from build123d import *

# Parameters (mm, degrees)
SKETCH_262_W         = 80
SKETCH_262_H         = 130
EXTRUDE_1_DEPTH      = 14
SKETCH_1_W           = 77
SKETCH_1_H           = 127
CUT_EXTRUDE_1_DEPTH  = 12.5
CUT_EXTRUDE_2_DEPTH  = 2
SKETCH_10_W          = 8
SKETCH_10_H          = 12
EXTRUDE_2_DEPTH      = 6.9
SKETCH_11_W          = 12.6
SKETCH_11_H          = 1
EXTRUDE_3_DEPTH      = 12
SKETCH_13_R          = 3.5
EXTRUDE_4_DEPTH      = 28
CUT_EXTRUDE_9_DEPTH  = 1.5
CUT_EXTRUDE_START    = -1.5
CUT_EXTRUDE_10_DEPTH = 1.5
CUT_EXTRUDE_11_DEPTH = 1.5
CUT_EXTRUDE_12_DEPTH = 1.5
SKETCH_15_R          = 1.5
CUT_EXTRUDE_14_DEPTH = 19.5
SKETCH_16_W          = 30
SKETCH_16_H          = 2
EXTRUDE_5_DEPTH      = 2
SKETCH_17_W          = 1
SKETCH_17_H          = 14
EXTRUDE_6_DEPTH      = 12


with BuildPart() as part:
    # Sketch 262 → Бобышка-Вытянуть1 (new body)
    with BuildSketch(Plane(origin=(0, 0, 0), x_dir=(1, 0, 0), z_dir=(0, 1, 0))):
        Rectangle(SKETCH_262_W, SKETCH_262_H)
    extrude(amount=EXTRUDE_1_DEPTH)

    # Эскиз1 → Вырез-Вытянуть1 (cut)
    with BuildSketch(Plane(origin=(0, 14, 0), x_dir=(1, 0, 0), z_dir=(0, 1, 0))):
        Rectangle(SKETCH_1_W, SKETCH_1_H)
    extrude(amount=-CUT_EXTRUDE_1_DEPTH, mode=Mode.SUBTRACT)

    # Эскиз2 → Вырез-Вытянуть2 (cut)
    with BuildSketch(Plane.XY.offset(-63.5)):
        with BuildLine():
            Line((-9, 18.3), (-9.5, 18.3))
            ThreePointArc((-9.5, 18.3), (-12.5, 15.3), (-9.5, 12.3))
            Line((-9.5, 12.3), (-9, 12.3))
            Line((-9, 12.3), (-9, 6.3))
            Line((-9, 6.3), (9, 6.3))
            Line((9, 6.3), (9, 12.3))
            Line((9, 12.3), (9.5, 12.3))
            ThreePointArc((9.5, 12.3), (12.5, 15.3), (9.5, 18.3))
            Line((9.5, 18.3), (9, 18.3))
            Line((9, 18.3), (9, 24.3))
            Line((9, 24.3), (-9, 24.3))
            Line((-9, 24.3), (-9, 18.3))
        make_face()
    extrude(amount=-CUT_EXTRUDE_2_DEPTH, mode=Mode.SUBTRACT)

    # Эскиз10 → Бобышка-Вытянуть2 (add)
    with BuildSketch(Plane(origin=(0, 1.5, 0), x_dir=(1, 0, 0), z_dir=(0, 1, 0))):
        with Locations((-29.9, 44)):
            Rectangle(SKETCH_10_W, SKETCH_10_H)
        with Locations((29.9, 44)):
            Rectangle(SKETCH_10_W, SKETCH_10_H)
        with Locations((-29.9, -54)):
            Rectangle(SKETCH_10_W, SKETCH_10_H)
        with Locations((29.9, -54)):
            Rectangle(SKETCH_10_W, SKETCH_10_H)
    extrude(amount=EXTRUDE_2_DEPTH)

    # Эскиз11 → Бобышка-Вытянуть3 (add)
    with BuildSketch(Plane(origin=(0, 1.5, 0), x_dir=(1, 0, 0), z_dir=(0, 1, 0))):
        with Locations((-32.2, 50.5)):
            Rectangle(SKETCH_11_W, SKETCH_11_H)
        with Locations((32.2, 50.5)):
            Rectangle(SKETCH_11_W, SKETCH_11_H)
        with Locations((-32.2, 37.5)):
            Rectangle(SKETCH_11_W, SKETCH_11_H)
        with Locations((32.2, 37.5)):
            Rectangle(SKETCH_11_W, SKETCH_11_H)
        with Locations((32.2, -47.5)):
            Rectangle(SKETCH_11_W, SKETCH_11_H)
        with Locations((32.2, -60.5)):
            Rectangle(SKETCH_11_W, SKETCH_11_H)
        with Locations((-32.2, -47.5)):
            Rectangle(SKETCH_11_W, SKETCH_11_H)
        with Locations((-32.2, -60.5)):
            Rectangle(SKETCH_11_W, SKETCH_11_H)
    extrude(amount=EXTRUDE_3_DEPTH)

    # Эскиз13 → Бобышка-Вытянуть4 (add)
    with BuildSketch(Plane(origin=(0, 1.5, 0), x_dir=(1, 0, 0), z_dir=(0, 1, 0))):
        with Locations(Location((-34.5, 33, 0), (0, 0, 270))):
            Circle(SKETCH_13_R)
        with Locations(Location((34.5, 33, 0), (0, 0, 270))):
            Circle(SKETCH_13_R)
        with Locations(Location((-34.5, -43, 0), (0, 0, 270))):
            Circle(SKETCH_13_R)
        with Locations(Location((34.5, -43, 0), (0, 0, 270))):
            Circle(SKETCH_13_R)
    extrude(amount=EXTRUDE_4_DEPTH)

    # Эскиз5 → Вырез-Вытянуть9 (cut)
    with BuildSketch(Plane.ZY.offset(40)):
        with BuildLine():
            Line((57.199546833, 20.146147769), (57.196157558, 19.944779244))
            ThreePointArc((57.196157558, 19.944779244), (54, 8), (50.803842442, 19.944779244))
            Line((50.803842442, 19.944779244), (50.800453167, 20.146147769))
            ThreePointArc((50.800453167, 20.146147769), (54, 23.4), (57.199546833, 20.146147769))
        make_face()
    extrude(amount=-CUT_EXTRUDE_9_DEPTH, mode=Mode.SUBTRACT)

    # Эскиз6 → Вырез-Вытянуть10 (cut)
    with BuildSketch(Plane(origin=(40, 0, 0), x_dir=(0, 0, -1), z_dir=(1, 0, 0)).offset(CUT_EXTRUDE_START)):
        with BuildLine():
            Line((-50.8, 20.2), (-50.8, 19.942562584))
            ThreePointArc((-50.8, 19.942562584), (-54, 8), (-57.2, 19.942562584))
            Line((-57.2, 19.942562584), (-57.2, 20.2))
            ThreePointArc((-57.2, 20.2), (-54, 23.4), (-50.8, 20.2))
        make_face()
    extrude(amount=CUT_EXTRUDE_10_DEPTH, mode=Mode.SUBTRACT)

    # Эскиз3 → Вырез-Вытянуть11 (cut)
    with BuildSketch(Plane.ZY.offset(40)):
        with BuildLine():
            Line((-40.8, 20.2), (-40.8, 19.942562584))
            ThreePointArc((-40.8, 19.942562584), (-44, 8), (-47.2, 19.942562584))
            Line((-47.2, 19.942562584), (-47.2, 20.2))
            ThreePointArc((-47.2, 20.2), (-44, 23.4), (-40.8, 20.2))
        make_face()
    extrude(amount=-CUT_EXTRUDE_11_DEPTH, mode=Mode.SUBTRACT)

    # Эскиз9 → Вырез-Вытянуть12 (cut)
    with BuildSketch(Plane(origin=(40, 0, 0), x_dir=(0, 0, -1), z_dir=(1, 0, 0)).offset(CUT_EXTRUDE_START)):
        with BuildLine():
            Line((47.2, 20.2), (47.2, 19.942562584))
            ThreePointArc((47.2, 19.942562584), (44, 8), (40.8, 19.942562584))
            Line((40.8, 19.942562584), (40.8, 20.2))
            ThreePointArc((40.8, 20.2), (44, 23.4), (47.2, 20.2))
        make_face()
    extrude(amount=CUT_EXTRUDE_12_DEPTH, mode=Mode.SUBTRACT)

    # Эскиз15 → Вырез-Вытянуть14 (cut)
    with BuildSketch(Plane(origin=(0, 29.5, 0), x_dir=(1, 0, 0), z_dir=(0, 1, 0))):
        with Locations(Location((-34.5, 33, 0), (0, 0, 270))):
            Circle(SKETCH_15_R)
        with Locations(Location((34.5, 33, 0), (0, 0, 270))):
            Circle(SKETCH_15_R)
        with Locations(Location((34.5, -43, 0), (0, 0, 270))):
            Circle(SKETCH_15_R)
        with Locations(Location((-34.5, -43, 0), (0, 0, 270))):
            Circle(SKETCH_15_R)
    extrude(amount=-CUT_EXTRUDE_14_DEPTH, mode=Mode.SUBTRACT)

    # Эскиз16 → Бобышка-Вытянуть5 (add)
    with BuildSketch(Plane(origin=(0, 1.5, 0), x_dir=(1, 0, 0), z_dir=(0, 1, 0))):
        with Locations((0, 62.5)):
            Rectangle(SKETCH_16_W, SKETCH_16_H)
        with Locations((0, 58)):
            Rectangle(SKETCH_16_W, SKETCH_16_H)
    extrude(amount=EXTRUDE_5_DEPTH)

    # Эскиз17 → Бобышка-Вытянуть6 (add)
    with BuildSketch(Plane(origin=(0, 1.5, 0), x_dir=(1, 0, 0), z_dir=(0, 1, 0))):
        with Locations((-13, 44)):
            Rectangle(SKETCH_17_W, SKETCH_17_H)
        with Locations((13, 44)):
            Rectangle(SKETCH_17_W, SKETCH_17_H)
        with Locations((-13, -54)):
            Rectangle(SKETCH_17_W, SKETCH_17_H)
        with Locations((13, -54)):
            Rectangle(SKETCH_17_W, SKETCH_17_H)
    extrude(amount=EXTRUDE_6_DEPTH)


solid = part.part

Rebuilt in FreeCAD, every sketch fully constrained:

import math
import FreeCAD as App
import Part
import Sketcher

V = App.Vector
Q = App.Units.Quantity


def add_polygon(sketch, points):
    """Adds a closed chain of lines whose ends are joined by coincident constraints."""
    first, n = sketch.GeometryCount, len(points)
    for a, b in zip(points, points[1:] + points[:1]):
        sketch.addGeometry(Part.LineSegment(App.Vector(*a, 0), App.Vector(*b, 0)), False)
    for i in range(n):
        sketch.addConstraint(Sketcher.Constraint("Coincident", first + i, 2, first + (i + 1) % n, 1))

doc = App.newDocument("Part")
params = doc.addObject("Spreadsheet::Sheet", "Params")
for row, (alias, value) in enumerate([
    ("sketch1_width", "80 mm"),
    ("sketch1_height", "130 mm"),
    ("pad1_length", "14 mm"),
    ("sketch2_width", "77 mm"),
    ("sketch2_height", "127 mm"),
    ("pocket1_length", "12.5 mm"),
    ("sketch3_radius", "3 mm"),
    ("sketch3_width", "18 mm"),
    ("sketch3_height", "6 mm"),
    ("sketch3_width2", "0.5 mm"),
    ("pocket2_length", "2 mm"),
    ("sketch4_width", "8 mm"),
    ("sketch4_height", "12 mm"),
    ("pad2_length", "6.9 mm"),
    ("sketch5_height", "1 mm"),
    ("sketch5_width", "12.6 mm"),
    ("pad3_length", "12 mm"),
    ("sketch6_diameter", "7 mm"),
    ("pad4_length", "28 mm"),
    ("sketch7_radius", "3.2 mm"),
    ("sketch7_radius2", "6.4 mm"),
    ("pocket3_length", "1.5 mm"),
    ("sketch8_radius", "3.2 mm"),
    ("sketch8_radius2", "6.4 mm"),
    ("pocket4_length", "1.5 mm"),
    ("sketch9_radius", "3.2 mm"),
    ("sketch9_radius2", "6.4 mm"),
    ("pocket5_length", "1.5 mm"),
    ("sketch10_radius", "3.2 mm"),
    ("sketch10_radius2", "6.4 mm"),
    ("pocket6_length", "1.5 mm"),
    ("sketch11_diameter", "3 mm"),
    ("pocket7_length", "19.5 mm"),
    ("sketch12_width", "30 mm"),
    ("sketch12_height", "2 mm"),
    ("pad5_length", "2 mm"),
    ("sketch13_width", "1 mm"),
    ("sketch13_height", "14 mm"),
    ("pad6_length", "12 mm"),
], start=1):
    params.set(f"A{row}", alias)
    params.set(f"B{row}", "=" + value)
    params.setAlias(f"B{row}", alias)

body = doc.addObject("PartDesign::Body", "Body")

# Sketch on XZ plane
sketch1 = body.newObject("Sketcher::SketchObject", "Sketch")
sketch1.AttachmentSupport = (doc.getObject("XZ_Plane"), [""])
sketch1.MapMode = "FlatFace"
add_polygon(sketch1, [(-40, -65), (-40, 65), (40, 65), (40, -65)])  # lines 0-3
sketch1.addConstraint(Sketcher.Constraint("Vertical", 0))
sketch1.addConstraint(Sketcher.Constraint("Horizontal", 1))
sketch1.addConstraint(Sketcher.Constraint("Vertical", 2))
sketch1.addConstraint(Sketcher.Constraint("Horizontal", 3))
sketch1.addConstraint(Sketcher.Constraint("Symmetric", 0, 2, 2, 2, -1, 1))
sketch1.addConstraint(Sketcher.Constraint("DistanceX", 1, 1, 1, 2, Q("80 mm")))
sketch1.addConstraint(Sketcher.Constraint("DistanceY", 0, 1, 0, 2, Q("130 mm")))
sketch1.setExpression("Constraints[9]", "Params.sketch1_width")
sketch1.setExpression("Constraints[10]", "Params.sketch1_height")
pad1 = body.newObject("PartDesign::Pad", "Pad")
pad1.Profile = sketch1
pad1.setExpression("Length", "Params.pad1_length")
pad1.Reversed = True

# Sketch on XZ plane
sketch2 = body.newObject("Sketcher::SketchObject", "Sketch001")
sketch2.AttachmentSupport = (doc.getObject("XZ_Plane"), [""])
sketch2.MapMode = "FlatFace"
sketch2.AttachmentOffset = App.Placement(V(0, 0, -14), App.Rotation())
add_polygon(sketch2, [(-38, -64), (-38, 64), (38, 64), (38, -64)])  # lines 0-3
sketch2.addConstraint(Sketcher.Constraint("Vertical", 0))
sketch2.addConstraint(Sketcher.Constraint("Horizontal", 1))
sketch2.addConstraint(Sketcher.Constraint("Vertical", 2))
sketch2.addConstraint(Sketcher.Constraint("Horizontal", 3))
sketch2.addConstraint(Sketcher.Constraint("Symmetric", 0, 2, 2, 2, -1, 1))
sketch2.addConstraint(Sketcher.Constraint("DistanceX", 1, 1, 1, 2, Q("77 mm")))
sketch2.addConstraint(Sketcher.Constraint("DistanceY", 0, 1, 0, 2, Q("127 mm")))
sketch2.setExpression("Constraints[9]", "Params.sketch2_width")
sketch2.setExpression("Constraints[10]", "Params.sketch2_height")
pocket1 = body.newObject("PartDesign::Pocket", "Pocket")
pocket1.Profile = sketch2
pocket1.setExpression("Length", "Params.pocket1_length")
pocket1.Reversed = True

# Sketch on XY plane
sketch3 = body.newObject("Sketcher::SketchObject", "Sketch002")
sketch3.AttachmentSupport = (doc.getObject("XY_Plane"), [""])
sketch3.MapMode = "FlatFace"
sketch3.AttachmentOffset = App.Placement(V(0, 0, -63.5), App.Rotation())
sketch3.addGeometry(Part.LineSegment(V(-9, 18.3, 0), V(-9.5, 18.3, 0)), False)
sketch3.addGeometry(Part.ArcOfCircle(Part.Circle(V(-9.5, 15.3, 0), V(0, 0, 1), 3), math.radians(90), math.radians(270)), False)
sketch3.addGeometry(Part.LineSegment(V(-9.5, 12.3, 0), V(-9, 12.3, 0)), False)
sketch3.addGeometry(Part.LineSegment(V(-9, 12.3, 0), V(-9, 6.3, 0)), False)
sketch3.addGeometry(Part.LineSegment(V(-9, 6.3, 0), V(9, 6.3, 0)), False)
sketch3.addGeometry(Part.LineSegment(V(9, 6.3, 0), V(9, 12.3, 0)), False)
sketch3.addGeometry(Part.LineSegment(V(9, 12.3, 0), V(9.5, 12.3, 0)), False)
sketch3.addGeometry(Part.ArcOfCircle(Part.Circle(V(9.5, 15.3, 0), V(0, 0, 1), 3), math.radians(-90), math.radians(90)), False)
sketch3.addGeometry(Part.LineSegment(V(9.5, 18.3, 0), V(9, 18.3, 0)), False)
sketch3.addGeometry(Part.LineSegment(V(9, 18.3, 0), V(9, 24.3, 0)), False)
sketch3.addGeometry(Part.LineSegment(V(9, 24.3, 0), V(-9, 24.3, 0)), False)
sketch3.addGeometry(Part.LineSegment(V(-9, 24.3, 0), V(-9, 18.3, 0)), False)
sketch3.addConstraint(Sketcher.Constraint("Tangent", 0, 2, 1, 1))
sketch3.addConstraint(Sketcher.Constraint("Tangent", 1, 2, 2, 1))
sketch3.addConstraint(Sketcher.Constraint("Coincident", 2, 2, 3, 1))
sketch3.addConstraint(Sketcher.Constraint("Coincident", 3, 2, 4, 1))
sketch3.addConstraint(Sketcher.Constraint("Coincident", 4, 2, 5, 1))
sketch3.addConstraint(Sketcher.Constraint("Coincident", 5, 2, 6, 1))
sketch3.addConstraint(Sketcher.Constraint("Tangent", 6, 2, 7, 1))
sketch3.addConstraint(Sketcher.Constraint("Tangent", 7, 2, 8, 1))
sketch3.addConstraint(Sketcher.Constraint("Coincident", 8, 2, 9, 1))
sketch3.addConstraint(Sketcher.Constraint("Coincident", 9, 2, 10, 1))
sketch3.addConstraint(Sketcher.Constraint("Coincident", 10, 2, 11, 1))
sketch3.addConstraint(Sketcher.Constraint("Coincident", 11, 2, 0, 1))
sketch3.addConstraint(Sketcher.Constraint("Horizontal", 0))
sketch3.addConstraint(Sketcher.Constraint("Horizontal", 2))
sketch3.addConstraint(Sketcher.Constraint("Vertical", 3))
sketch3.addConstraint(Sketcher.Constraint("Horizontal", 4))
sketch3.addConstraint(Sketcher.Constraint("Vertical", 5))
sketch3.addConstraint(Sketcher.Constraint("Horizontal", 6))
sketch3.addConstraint(Sketcher.Constraint("Horizontal", 8))
sketch3.addConstraint(Sketcher.Constraint("Vertical", 9))
sketch3.addConstraint(Sketcher.Constraint("Horizontal", 10))
sketch3.addConstraint(Sketcher.Constraint("Vertical", 11))
sketch3.addConstraint(Sketcher.Constraint("Equal", 1, 7))
sketch3.addConstraint(Sketcher.Constraint("Symmetric", 1, 3, 7, 3, -2))
sketch3.addConstraint(Sketcher.Constraint("Vertical", 5, 2, 8, 2))
sketch3.addConstraint(Sketcher.Constraint("Vertical", 3, 2, 10, 2))
sketch3.addConstraint(Sketcher.Constraint("Equal", 2, 6))
sketch3.addConstraint(Sketcher.Constraint("Equal", 5, 9))
sketch3.addConstraint(Sketcher.Constraint("Radius", 1, Q("3 mm")))
sketch3.addConstraint(Sketcher.Constraint("DistanceX", 4, 1, 4, 2, Q("18 mm")))
sketch3.addConstraint(Sketcher.Constraint("DistanceY", 3, 2, 3, 1, Q("6 mm")))
sketch3.addConstraint(Sketcher.Constraint("DistanceX", 0, 2, 0, 1, Q("0.5 mm")))
sketch3.addConstraint(Sketcher.Constraint("DistanceY", -1, 1, 1, 3, Q("15.3 mm")))
sketch3.setExpression("Constraints[28]", "Params.sketch3_radius")
sketch3.setExpression("Constraints[29]", "Params.sketch3_width")
sketch3.setExpression("Constraints[30]", "Params.sketch3_height")
sketch3.setExpression("Constraints[31]", "Params.sketch3_width2")
pocket2 = body.newObject("PartDesign::Pocket", "Pocket001")
pocket2.Profile = sketch3
pocket2.setExpression("Length", "Params.pocket2_length")

# Sketch on XZ plane
sketch4 = body.newObject("Sketcher::SketchObject", "Sketch003")
sketch4.AttachmentSupport = (doc.getObject("XZ_Plane"), [""])
sketch4.MapMode = "FlatFace"
sketch4.AttachmentOffset = App.Placement(V(0, 0, -1.5), App.Rotation())
add_polygon(sketch4, [(-34, -50), (-34, -38), (-26, -38), (-26, -50)])  # lines 0-3
add_polygon(sketch4, [(26, -50), (26, -38), (34, -38), (34, -50)])  # lines 4-7
add_polygon(sketch4, [(-34, 48), (-34, 60), (-26, 60), (-26, 48)])  # lines 8-11
add_polygon(sketch4, [(26, 48), (26, 60), (34, 60), (34, 48)])  # lines 12-15
sketch4.addConstraint(Sketcher.Constraint("Vertical", 0))
sketch4.addConstraint(Sketcher.Constraint("Horizontal", 1))
sketch4.addConstraint(Sketcher.Constraint("Vertical", 2))
sketch4.addConstraint(Sketcher.Constraint("Horizontal", 3))
sketch4.addConstraint(Sketcher.Constraint("Vertical", 4))
sketch4.addConstraint(Sketcher.Constraint("Horizontal", 5))
sketch4.addConstraint(Sketcher.Constraint("Vertical", 6))
sketch4.addConstraint(Sketcher.Constraint("Horizontal", 7))
sketch4.addConstraint(Sketcher.Constraint("Vertical", 8))
sketch4.addConstraint(Sketcher.Constraint("Horizontal", 9))
sketch4.addConstraint(Sketcher.Constraint("Vertical", 10))
sketch4.addConstraint(Sketcher.Constraint("Horizontal", 11))
sketch4.addConstraint(Sketcher.Constraint("Vertical", 12))
sketch4.addConstraint(Sketcher.Constraint("Horizontal", 13))
sketch4.addConstraint(Sketcher.Constraint("Vertical", 14))
sketch4.addConstraint(Sketcher.Constraint("Horizontal", 15))
sketch4.addConstraint(Sketcher.Constraint("Symmetric", 1, 2, 4, 2, -2))
sketch4.addConstraint(Sketcher.Constraint("Symmetric", 3, 2, 6, 2, -2))
sketch4.addConstraint(Sketcher.Constraint("Symmetric", 9, 2, 12, 2, -2))
sketch4.addConstraint(Sketcher.Constraint("Symmetric", 11, 2, 14, 2, -2))
sketch4.addConstraint(Sketcher.Constraint("Vertical", 3, 2, 8, 2))
sketch4.addConstraint(Sketcher.Constraint("Vertical", 2, 2, 9, 2))
sketch4.addConstraint(Sketcher.Constraint("Equal", 6, 8))
sketch4.addConstraint(Sketcher.Constraint("DistanceX", 1, 1, 1, 2, Q("8 mm")))
sketch4.addConstraint(Sketcher.Constraint("DistanceY", 0, 1, 0, 2, Q("12 mm")))
sketch4.addConstraint(Sketcher.Constraint("DistanceY", 0, 2, -1, 1, Q("38 mm")))
sketch4.addConstraint(Sketcher.Constraint("DistanceY", -1, 1, 8, 2, Q("60 mm")))
sketch4.addConstraint(Sketcher.Constraint("DistanceX", 0, 2, -1, 1, Q("33.9 mm")))
sketch4.setExpression("Constraints[39]", "Params.sketch4_width")
sketch4.setExpression("Constraints[40]", "Params.sketch4_height")
pad2 = body.newObject("PartDesign::Pad", "Pad001")
pad2.Profile = sketch4
pad2.setExpression("Length", "Params.pad2_length")
pad2.Reversed = True

# Sketch on XZ plane
sketch5 = body.newObject("Sketcher::SketchObject", "Sketch004")
sketch5.AttachmentSupport = (doc.getObject("XZ_Plane"), [""])
sketch5.MapMode = "FlatFace"
sketch5.AttachmentOffset = App.Placement(V(0, 0, -1.5), App.Rotation())
add_polygon(sketch5, [(-38.5, -51), (-38.5, -50), (-25.9, -50), (-25.9, -51)])  # lines 0-3
add_polygon(sketch5, [(25.9, -51), (25.9, -50), (38.5, -50), (38.5, -51)])  # lines 4-7
add_polygon(sketch5, [(-38.5, -38), (-38.5, -37), (-25.9, -37), (-25.9, -38)])  # lines 8-11
add_polygon(sketch5, [(25.9, -38), (25.9, -37), (38.5, -37), (38.5, -38)])  # lines 12-15
add_polygon(sketch5, [(25.9, 47), (25.9, 48), (38.5, 48), (38.5, 47)])  # lines 16-19
add_polygon(sketch5, [(25.9, 60), (25.9, 61), (38.5, 61), (38.5, 60)])  # lines 20-23
add_polygon(sketch5, [(-38.5, 47), (-38.5, 48), (-25.9, 48), (-25.9, 47)])  # lines 24-27
add_polygon(sketch5, [(-38.5, 60), (-38.5, 61), (-25.9, 61), (-25.9, 60)])  # lines 28-31
sketch5.addConstraint(Sketcher.Constraint("Vertical", 0))
sketch5.addConstraint(Sketcher.Constraint("Horizontal", 1))
sketch5.addConstraint(Sketcher.Constraint("Vertical", 2))
sketch5.addConstraint(Sketcher.Constraint("Horizontal", 3))
sketch5.addConstraint(Sketcher.Constraint("Vertical", 4))
sketch5.addConstraint(Sketcher.Constraint("Horizontal", 5))
sketch5.addConstraint(Sketcher.Constraint("Vertical", 6))
sketch5.addConstraint(Sketcher.Constraint("Horizontal", 7))
sketch5.addConstraint(Sketcher.Constraint("Vertical", 8))
sketch5.addConstraint(Sketcher.Constraint("Horizontal", 9))
sketch5.addConstraint(Sketcher.Constraint("Vertical", 10))
sketch5.addConstraint(Sketcher.Constraint("Horizontal", 11))
sketch5.addConstraint(Sketcher.Constraint("Vertical", 12))
sketch5.addConstraint(Sketcher.Constraint("Horizontal", 13))
sketch5.addConstraint(Sketcher.Constraint("Vertical", 14))
sketch5.addConstraint(Sketcher.Constraint("Horizontal", 15))
sketch5.addConstraint(Sketcher.Constraint("Vertical", 16))
sketch5.addConstraint(Sketcher.Constraint("Horizontal", 17))
sketch5.addConstraint(Sketcher.Constraint("Vertical", 18))
sketch5.addConstraint(Sketcher.Constraint("Horizontal", 19))
sketch5.addConstraint(Sketcher.Constraint("Vertical", 20))
sketch5.addConstraint(Sketcher.Constraint("Horizontal", 21))
sketch5.addConstraint(Sketcher.Constraint("Vertical", 22))
sketch5.addConstraint(Sketcher.Constraint("Horizontal", 23))
sketch5.addConstraint(Sketcher.Constraint("Vertical", 24))
sketch5.addConstraint(Sketcher.Constraint("Horizontal", 25))
sketch5.addConstraint(Sketcher.Constraint("Vertical", 26))
sketch5.addConstraint(Sketcher.Constraint("Horizontal", 27))
sketch5.addConstraint(Sketcher.Constraint("Vertical", 28))
sketch5.addConstraint(Sketcher.Constraint("Horizontal", 29))
sketch5.addConstraint(Sketcher.Constraint("Vertical", 30))
sketch5.addConstraint(Sketcher.Constraint("Horizontal", 31))
sketch5.addConstraint(Sketcher.Constraint("Symmetric", 1, 2, 4, 2, -2))
sketch5.addConstraint(Sketcher.Constraint("Symmetric", 3, 2, 6, 2, -2))
sketch5.addConstraint(Sketcher.Constraint("Symmetric", 9, 2, 12, 2, -2))
sketch5.addConstraint(Sketcher.Constraint("Symmetric", 11, 2, 14, 2, -2))
sketch5.addConstraint(Sketcher.Constraint("Symmetric", 17, 2, 24, 2, -2))
sketch5.addConstraint(Sketcher.Constraint("Symmetric", 19, 2, 26, 2, -2))
sketch5.addConstraint(Sketcher.Constraint("Symmetric", 21, 2, 28, 2, -2))
sketch5.addConstraint(Sketcher.Constraint("Symmetric", 23, 2, 30, 2, -2))
sketch5.addConstraint(Sketcher.Constraint("Vertical", 3, 2, 8, 2))
sketch5.addConstraint(Sketcher.Constraint("Vertical", 2, 2, 9, 2))
sketch5.addConstraint(Sketcher.Constraint("Vertical", 15, 2, 16, 2))
sketch5.addConstraint(Sketcher.Constraint("Vertical", 14, 2, 17, 2))
sketch5.addConstraint(Sketcher.Constraint("Vertical", 19, 2, 20, 2))
sketch5.addConstraint(Sketcher.Constraint("Vertical", 18, 2, 21, 2))
sketch5.addConstraint(Sketcher.Constraint("Equal", 6, 8))
sketch5.addConstraint(Sketcher.Constraint("Equal", 14, 16))
sketch5.addConstraint(Sketcher.Constraint("Equal", 18, 20))
sketch5.addConstraint(Sketcher.Constraint("DistanceY", 0, 1, 0, 2, Q("1 mm")))
sketch5.addConstraint(Sketcher.Constraint("DistanceX", 1, 1, 1, 2, Q("12.6 mm")))
sketch5.addConstraint(Sketcher.Constraint("DistanceY", 0, 2, -1, 1, Q("50 mm")))
sketch5.addConstraint(Sketcher.Constraint("DistanceY", 8, 2, -1, 1, Q("37 mm")))
sketch5.addConstraint(Sketcher.Constraint("DistanceY", -1, 1, 16, 2, Q("48 mm")))
sketch5.addConstraint(Sketcher.Constraint("DistanceY", -1, 1, 20, 2, Q("61 mm")))
sketch5.addConstraint(Sketcher.Constraint("DistanceX", 0, 2, 5, 2, Q("77 mm")))
sketch5.setExpression("Constraints[81]", "Params.sketch5_height")
sketch5.setExpression("Constraints[82]", "Params.sketch5_width")
pad3 = body.newObject("PartDesign::Pad", "Pad002")
pad3.Profile = sketch5
pad3.setExpression("Length", "Params.pad3_length")
pad3.Reversed = True

# Sketch on XZ plane
sketch6 = body.newObject("Sketcher::SketchObject", "Sketch005")
sketch6.AttachmentSupport = (doc.getObject("XZ_Plane"), [""])
sketch6.MapMode = "FlatFace"
sketch6.AttachmentOffset = App.Placement(V(0, 0, -1.5), App.Rotation())
sketch6.addGeometry(Part.Circle(V(-34.5, -33, 0), V(0, 0, 1), 3.5), False)
sketch6.addGeometry(Part.Circle(V(34.5, -33, 0), V(0, 0, 1), 3.5), False)
sketch6.addGeometry(Part.Circle(V(-34.5, 43, 0), V(0, 0, 1), 3.5), False)
sketch6.addGeometry(Part.Circle(V(34.5, 43, 0), V(0, 0, 1), 3.5), False)
sketch6.addConstraint(Sketcher.Constraint("Equal", 0, 1))
sketch6.addConstraint(Sketcher.Constraint("Equal", 1, 2))
sketch6.addConstraint(Sketcher.Constraint("Equal", 2, 3))
sketch6.addConstraint(Sketcher.Constraint("Symmetric", 0, 3, 1, 3, -2))
sketch6.addConstraint(Sketcher.Constraint("Symmetric", 2, 3, 3, 3, -2))
sketch6.addConstraint(Sketcher.Constraint("Vertical", 0, 3, 2, 3))
sketch6.addConstraint(Sketcher.Constraint("Diameter", 0, Q("7 mm")))
sketch6.addConstraint(Sketcher.Constraint("DistanceY", 0, 3, -1, 1, Q("33 mm")))
sketch6.addConstraint(Sketcher.Constraint("DistanceY", -1, 1, 2, 3, Q("43 mm")))
sketch6.addConstraint(Sketcher.Constraint("DistanceX", 0, 3, 1, 3, Q("69 mm")))
sketch6.setExpression("Constraints[6]", "Params.sketch6_diameter")
pad4 = body.newObject("PartDesign::Pad", "Pad003")
pad4.Profile = sketch6
pad4.setExpression("Length", "Params.pad4_length")
pad4.Reversed = True

# Sketch on YZ plane
sketch7 = body.newObject("Sketcher::SketchObject", "Sketch006")
sketch7.AttachmentSupport = (doc.getObject("YZ_Plane"), [""])
sketch7.MapMode = "FlatFace"
sketch7.AttachmentOffset = App.Placement(V(0, 0, -40), App.Rotation())
sketch7.addGeometry(Part.LineSegment(V(19.94, 57.2, 0), V(20.15, 57.2, 0)), False)
sketch7.addGeometry(Part.ArcOfCircle(Part.Circle(V(20.2, 54, 0), V(0, 0, 1), 3.2), math.radians(-91), math.radians(91)), False)
sketch7.addGeometry(Part.LineSegment(V(20.15, 50.8, 0), V(19.94, 50.8, 0)), False)
sketch7.addGeometry(Part.ArcOfCircle(Part.Circle(V(14.4, 54, 0), V(0, 0, 1), 6.4), math.radians(30), math.radians(330)), False)
sketch7.addConstraint(Sketcher.Constraint("Tangent", 0, 2, 1, 2))
sketch7.addConstraint(Sketcher.Constraint("Tangent", 1, 1, 2, 1))
sketch7.addConstraint(Sketcher.Constraint("Coincident", 2, 2, 3, 2))
sketch7.addConstraint(Sketcher.Constraint("Coincident", 3, 1, 0, 1))
sketch7.addConstraint(Sketcher.Constraint("Horizontal", 1, 3, 3, 3))
sketch7.addConstraint(Sketcher.Constraint("Vertical", 0, 2, 1, 1))
sketch7.addConstraint(Sketcher.Constraint("Radius", 1, Q("3.2 mm")))
sketch7.addConstraint(Sketcher.Constraint("Radius", 3, Q("6.4 mm")))
sketch7.addConstraint(Sketcher.Constraint("DistanceY", -1, 1, 1, 3, Q("54 mm")))
sketch7.addConstraint(Sketcher.Constraint("DistanceX", -1, 1, 1, 3, Q("20.2 mm")))
sketch7.addConstraint(Sketcher.Constraint("DistanceX", -1, 1, 3, 3, Q("14.4 mm")))
sketch7.addConstraint(Sketcher.Constraint("DistanceX", -1, 1, 2, 2, Q("19.944779 mm")))
sketch7.setExpression("Constraints[6]", "Params.sketch7_radius")
sketch7.setExpression("Constraints[7]", "Params.sketch7_radius2")
pocket3 = body.newObject("PartDesign::Pocket", "Pocket002")
pocket3.Profile = sketch7
pocket3.setExpression("Length", "Params.pocket3_length")
pocket3.Reversed = True

# Sketch on YZ plane
sketch8 = body.newObject("Sketcher::SketchObject", "Sketch007")
sketch8.AttachmentSupport = (doc.getObject("YZ_Plane"), [""])
sketch8.MapMode = "FlatFace"
sketch8.AttachmentOffset = App.Placement(V(0, 0, 38.5), App.Rotation())
sketch8.addGeometry(Part.LineSegment(V(19.94, 50.8, 0), V(20.2, 50.8, 0)), False)
sketch8.addGeometry(Part.ArcOfCircle(Part.Circle(V(20.2, 54, 0), V(0, 0, 1), 3.2), math.radians(-90), math.radians(90)), False)
sketch8.addGeometry(Part.LineSegment(V(20.2, 57.2, 0), V(19.94, 57.2, 0)), False)
sketch8.addGeometry(Part.ArcOfCircle(Part.Circle(V(14.4, 54, 0), V(0, 0, 1), 6.4), math.radians(30), math.radians(330)), False)
sketch8.addConstraint(Sketcher.Constraint("Tangent", 0, 2, 1, 1))
sketch8.addConstraint(Sketcher.Constraint("Tangent", 1, 2, 2, 1))
sketch8.addConstraint(Sketcher.Constraint("Coincident", 2, 2, 3, 1))
sketch8.addConstraint(Sketcher.Constraint("Coincident", 3, 2, 0, 1))
sketch8.addConstraint(Sketcher.Constraint("Horizontal", 0))
sketch8.addConstraint(Sketcher.Constraint("Horizontal", 2))
sketch8.addConstraint(Sketcher.Constraint("Horizontal", 1, 3, 3, 3))
sketch8.addConstraint(Sketcher.Constraint("Radius", 1, Q("3.2 mm")))
sketch8.addConstraint(Sketcher.Constraint("Radius", 3, Q("6.4 mm")))
sketch8.addConstraint(Sketcher.Constraint("DistanceY", -1, 1, 1, 3, Q("54 mm")))
sketch8.addConstraint(Sketcher.Constraint("DistanceX", -1, 1, 1, 3, Q("20.2 mm")))
sketch8.addConstraint(Sketcher.Constraint("DistanceX", -1, 1, 3, 3, Q("14.4 mm")))
sketch8.setExpression("Constraints[7]", "Params.sketch8_radius")
sketch8.setExpression("Constraints[8]", "Params.sketch8_radius2")
pocket4 = body.newObject("PartDesign::Pocket", "Pocket003")
pocket4.Profile = sketch8
pocket4.setExpression("Length", "Params.pocket4_length")
pocket4.Reversed = True

# Sketch on YZ plane
sketch9 = body.newObject("Sketcher::SketchObject", "Sketch008")
sketch9.AttachmentSupport = (doc.getObject("YZ_Plane"), [""])
sketch9.MapMode = "FlatFace"
sketch9.AttachmentOffset = App.Placement(V(0, 0, -40), App.Rotation())
sketch9.addGeometry(Part.LineSegment(V(19.94, -40.8, 0), V(20.2, -40.8, 0)), False)
sketch9.addGeometry(Part.ArcOfCircle(Part.Circle(V(20.2, -44, 0), V(0, 0, 1), 3.2), math.radians(-90), math.radians(90)), False)
sketch9.addGeometry(Part.LineSegment(V(20.2, -47.2, 0), V(19.94, -47.2, 0)), False)
sketch9.addGeometry(Part.ArcOfCircle(Part.Circle(V(14.4, -44, 0), V(0, 0, 1), 6.4), math.radians(30), math.radians(330)), False)
sketch9.addConstraint(Sketcher.Constraint("Tangent", 0, 2, 1, 2))
sketch9.addConstraint(Sketcher.Constraint("Tangent", 1, 1, 2, 1))
sketch9.addConstraint(Sketcher.Constraint("Coincident", 2, 2, 3, 2))
sketch9.addConstraint(Sketcher.Constraint("Coincident", 3, 1, 0, 1))
sketch9.addConstraint(Sketcher.Constraint("Horizontal", 0))
sketch9.addConstraint(Sketcher.Constraint("Horizontal", 2))
sketch9.addConstraint(Sketcher.Constraint("Horizontal", 1, 3, 3, 3))
sketch9.addConstraint(Sketcher.Constraint("Radius", 1, Q("3.2 mm")))
sketch9.addConstraint(Sketcher.Constraint("Radius", 3, Q("6.4 mm")))
sketch9.addConstraint(Sketcher.Constraint("DistanceY", 1, 3, -1, 1, Q("44 mm")))
sketch9.addConstraint(Sketcher.Constraint("DistanceX", -1, 1, 1, 3, Q("20.2 mm")))
sketch9.addConstraint(Sketcher.Constraint("DistanceX", -1, 1, 3, 3, Q("14.4 mm")))
sketch9.setExpression("Constraints[7]", "Params.sketch9_radius")
sketch9.setExpression("Constraints[8]", "Params.sketch9_radius2")
pocket5 = body.newObject("PartDesign::Pocket", "Pocket004")
pocket5.Profile = sketch9
pocket5.setExpression("Length", "Params.pocket5_length")
pocket5.Reversed = True

# Sketch on YZ plane
sketch10 = body.newObject("Sketcher::SketchObject", "Sketch009")
sketch10.AttachmentSupport = (doc.getObject("YZ_Plane"), [""])
sketch10.MapMode = "FlatFace"
sketch10.AttachmentOffset = App.Placement(V(0, 0, 38.5), App.Rotation())
sketch10.addGeometry(Part.LineSegment(V(19.94, -47.2, 0), V(20.2, -47.2, 0)), False)
sketch10.addGeometry(Part.ArcOfCircle(Part.Circle(V(20.2, -44, 0), V(0, 0, 1), 3.2), math.radians(-90), math.radians(90)), False)
sketch10.addGeometry(Part.LineSegment(V(20.2, -40.8, 0), V(19.94, -40.8, 0)), False)
sketch10.addGeometry(Part.ArcOfCircle(Part.Circle(V(14.4, -44, 0), V(0, 0, 1), 6.4), math.radians(30), math.radians(330)), False)
sketch10.addConstraint(Sketcher.Constraint("Tangent", 0, 2, 1, 1))
sketch10.addConstraint(Sketcher.Constraint("Tangent", 1, 2, 2, 1))
sketch10.addConstraint(Sketcher.Constraint("Coincident", 2, 2, 3, 1))
sketch10.addConstraint(Sketcher.Constraint("Coincident", 3, 2, 0, 1))
sketch10.addConstraint(Sketcher.Constraint("Horizontal", 0))
sketch10.addConstraint(Sketcher.Constraint("Horizontal", 2))
sketch10.addConstraint(Sketcher.Constraint("Horizontal", 1, 3, 3, 3))
sketch10.addConstraint(Sketcher.Constraint("Radius", 1, Q("3.2 mm")))
sketch10.addConstraint(Sketcher.Constraint("Radius", 3, Q("6.4 mm")))
sketch10.addConstraint(Sketcher.Constraint("DistanceY", 1, 3, -1, 1, Q("44 mm")))
sketch10.addConstraint(Sketcher.Constraint("DistanceX", -1, 1, 1, 3, Q("20.2 mm")))
sketch10.addConstraint(Sketcher.Constraint("DistanceX", -1, 1, 3, 3, Q("14.4 mm")))
sketch10.setExpression("Constraints[7]", "Params.sketch10_radius")
sketch10.setExpression("Constraints[8]", "Params.sketch10_radius2")
pocket6 = body.newObject("PartDesign::Pocket", "Pocket005")
pocket6.Profile = sketch10
pocket6.setExpression("Length", "Params.pocket6_length")
pocket6.Reversed = True

# Sketch on XZ plane
sketch11 = body.newObject("Sketcher::SketchObject", "Sketch010")
sketch11.AttachmentSupport = (doc.getObject("XZ_Plane"), [""])
sketch11.MapMode = "FlatFace"
sketch11.AttachmentOffset = App.Placement(V(0, 0, -29.5), App.Rotation())
sketch11.addGeometry(Part.Circle(V(-34.5, -33, 0), V(0, 0, 1), 1.5), False)
sketch11.addGeometry(Part.Circle(V(34.5, -33, 0), V(0, 0, 1), 1.5), False)
sketch11.addGeometry(Part.Circle(V(34.5, 43, 0), V(0, 0, 1), 1.5), False)
sketch11.addGeometry(Part.Circle(V(-34.5, 43, 0), V(0, 0, 1), 1.5), False)
sketch11.addConstraint(Sketcher.Constraint("Equal", 0, 1))
sketch11.addConstraint(Sketcher.Constraint("Equal", 1, 2))
sketch11.addConstraint(Sketcher.Constraint("Equal", 2, 3))
sketch11.addConstraint(Sketcher.Constraint("Symmetric", 0, 3, 1, 3, -2))
sketch11.addConstraint(Sketcher.Constraint("Symmetric", 2, 3, 3, 3, -2))
sketch11.addConstraint(Sketcher.Constraint("Vertical", 1, 3, 2, 3))
sketch11.addConstraint(Sketcher.Constraint("Diameter", 0, Q("3 mm")))
sketch11.addConstraint(Sketcher.Constraint("DistanceY", 0, 3, -1, 1, Q("33 mm")))
sketch11.addConstraint(Sketcher.Constraint("DistanceY", -1, 1, 2, 3, Q("43 mm")))
sketch11.addConstraint(Sketcher.Constraint("DistanceX", 0, 3, 1, 3, Q("69 mm")))
sketch11.setExpression("Constraints[6]", "Params.sketch11_diameter")
pocket7 = body.newObject("PartDesign::Pocket", "Pocket006")
pocket7.Profile = sketch11
pocket7.setExpression("Length", "Params.pocket7_length")
pocket7.Reversed = True

# Sketch on XZ plane
sketch12 = body.newObject("Sketcher::SketchObject", "Sketch011")
sketch12.AttachmentSupport = (doc.getObject("XZ_Plane"), [""])
sketch12.MapMode = "FlatFace"
sketch12.AttachmentOffset = App.Placement(V(0, 0, -1.5), App.Rotation())
add_polygon(sketch12, [(-15, -63.5), (-15, -61.5), (15, -61.5), (15, -63.5)])  # lines 0-3
add_polygon(sketch12, [(-15, -59), (-15, -57), (15, -57), (15, -59)])  # lines 4-7
sketch12.addConstraint(Sketcher.Constraint("Vertical", 0))
sketch12.addConstraint(Sketcher.Constraint("Horizontal", 1))
sketch12.addConstraint(Sketcher.Constraint("Vertical", 2))
sketch12.addConstraint(Sketcher.Constraint("Horizontal", 3))
sketch12.addConstraint(Sketcher.Constraint("Vertical", 4))
sketch12.addConstraint(Sketcher.Constraint("Horizontal", 5))
sketch12.addConstraint(Sketcher.Constraint("Vertical", 6))
sketch12.addConstraint(Sketcher.Constraint("Horizontal", 7))
sketch12.addConstraint(Sketcher.Constraint("Vertical", 3, 2, 4, 2))
sketch12.addConstraint(Sketcher.Constraint("Vertical", 2, 2, 5, 2))
sketch12.addConstraint(Sketcher.Constraint("Equal", 2, 4))
sketch12.addConstraint(Sketcher.Constraint("DistanceX", 1, 1, 1, 2, Q("30 mm")))
sketch12.addConstraint(Sketcher.Constraint("DistanceY", 0, 1, 0, 2, Q("2 mm")))
sketch12.addConstraint(Sketcher.Constraint("DistanceX", 0, 2, -1, 1, Q("15 mm")))
sketch12.addConstraint(Sketcher.Constraint("DistanceY", 4, 2, -1, 1, Q("57 mm")))
sketch12.addConstraint(Sketcher.Constraint("DistanceY", 0, 2, -1, 1, Q("61.5 mm")))
sketch12.setExpression("Constraints[19]", "Params.sketch12_width")
sketch12.setExpression("Constraints[20]", "Params.sketch12_height")
pad5 = body.newObject("PartDesign::Pad", "Pad004")
pad5.Profile = sketch12
pad5.setExpression("Length", "Params.pad5_length")
pad5.Reversed = True

# Sketch on XZ plane
sketch13 = body.newObject("Sketcher::SketchObject", "Sketch012")
sketch13.AttachmentSupport = (doc.getObject("XZ_Plane"), [""])
sketch13.MapMode = "FlatFace"
sketch13.AttachmentOffset = App.Placement(V(0, 0, -1.5), App.Rotation())
add_polygon(sketch13, [(-13.5, -51), (-13.5, -37), (-12.5, -37), (-12.5, -51)])  # lines 0-3
add_polygon(sketch13, [(12.5, -51), (12.5, -37), (13.5, -37), (13.5, -51)])  # lines 4-7
add_polygon(sketch13, [(-13.5, 47), (-13.5, 61), (-12.5, 61), (-12.5, 47)])  # lines 8-11
add_polygon(sketch13, [(12.5, 47), (12.5, 61), (13.5, 61), (13.5, 47)])  # lines 12-15
sketch13.addConstraint(Sketcher.Constraint("Vertical", 0))
sketch13.addConstraint(Sketcher.Constraint("Horizontal", 1))
sketch13.addConstraint(Sketcher.Constraint("Vertical", 2))
sketch13.addConstraint(Sketcher.Constraint("Horizontal", 3))
sketch13.addConstraint(Sketcher.Constraint("Vertical", 4))
sketch13.addConstraint(Sketcher.Constraint("Horizontal", 5))
sketch13.addConstraint(Sketcher.Constraint("Vertical", 6))
sketch13.addConstraint(Sketcher.Constraint("Horizontal", 7))
sketch13.addConstraint(Sketcher.Constraint("Vertical", 8))
sketch13.addConstraint(Sketcher.Constraint("Horizontal", 9))
sketch13.addConstraint(Sketcher.Constraint("Vertical", 10))
sketch13.addConstraint(Sketcher.Constraint("Horizontal", 11))
sketch13.addConstraint(Sketcher.Constraint("Vertical", 12))
sketch13.addConstraint(Sketcher.Constraint("Horizontal", 13))
sketch13.addConstraint(Sketcher.Constraint("Vertical", 14))
sketch13.addConstraint(Sketcher.Constraint("Horizontal", 15))
sketch13.addConstraint(Sketcher.Constraint("Symmetric", 1, 2, 4, 2, -2))
sketch13.addConstraint(Sketcher.Constraint("Symmetric", 3, 2, 6, 2, -2))
sketch13.addConstraint(Sketcher.Constraint("Symmetric", 9, 2, 12, 2, -2))
sketch13.addConstraint(Sketcher.Constraint("Symmetric", 11, 2, 14, 2, -2))
sketch13.addConstraint(Sketcher.Constraint("Vertical", 3, 2, 8, 2))
sketch13.addConstraint(Sketcher.Constraint("Vertical", 2, 2, 9, 2))
sketch13.addConstraint(Sketcher.Constraint("Equal", 6, 8))
sketch13.addConstraint(Sketcher.Constraint("DistanceX", 1, 1, 1, 2, Q("1 mm")))
sketch13.addConstraint(Sketcher.Constraint("DistanceY", 0, 1, 0, 2, Q("14 mm")))
sketch13.addConstraint(Sketcher.Constraint("DistanceY", 0, 2, -1, 1, Q("37 mm")))
sketch13.addConstraint(Sketcher.Constraint("DistanceY", -1, 1, 8, 2, Q("61 mm")))
sketch13.addConstraint(Sketcher.Constraint("DistanceX", 1, 2, 4, 2, Q("25 mm")))
sketch13.setExpression("Constraints[39]", "Params.sketch13_width")
sketch13.setExpression("Constraints[40]", "Params.sketch13_height")
pad6 = body.newObject("PartDesign::Pad", "Pad005")
pad6.Profile = sketch13
pad6.setExpression("Length", "Params.pad6_length")
pad6.Reversed = True

doc.recompute()
